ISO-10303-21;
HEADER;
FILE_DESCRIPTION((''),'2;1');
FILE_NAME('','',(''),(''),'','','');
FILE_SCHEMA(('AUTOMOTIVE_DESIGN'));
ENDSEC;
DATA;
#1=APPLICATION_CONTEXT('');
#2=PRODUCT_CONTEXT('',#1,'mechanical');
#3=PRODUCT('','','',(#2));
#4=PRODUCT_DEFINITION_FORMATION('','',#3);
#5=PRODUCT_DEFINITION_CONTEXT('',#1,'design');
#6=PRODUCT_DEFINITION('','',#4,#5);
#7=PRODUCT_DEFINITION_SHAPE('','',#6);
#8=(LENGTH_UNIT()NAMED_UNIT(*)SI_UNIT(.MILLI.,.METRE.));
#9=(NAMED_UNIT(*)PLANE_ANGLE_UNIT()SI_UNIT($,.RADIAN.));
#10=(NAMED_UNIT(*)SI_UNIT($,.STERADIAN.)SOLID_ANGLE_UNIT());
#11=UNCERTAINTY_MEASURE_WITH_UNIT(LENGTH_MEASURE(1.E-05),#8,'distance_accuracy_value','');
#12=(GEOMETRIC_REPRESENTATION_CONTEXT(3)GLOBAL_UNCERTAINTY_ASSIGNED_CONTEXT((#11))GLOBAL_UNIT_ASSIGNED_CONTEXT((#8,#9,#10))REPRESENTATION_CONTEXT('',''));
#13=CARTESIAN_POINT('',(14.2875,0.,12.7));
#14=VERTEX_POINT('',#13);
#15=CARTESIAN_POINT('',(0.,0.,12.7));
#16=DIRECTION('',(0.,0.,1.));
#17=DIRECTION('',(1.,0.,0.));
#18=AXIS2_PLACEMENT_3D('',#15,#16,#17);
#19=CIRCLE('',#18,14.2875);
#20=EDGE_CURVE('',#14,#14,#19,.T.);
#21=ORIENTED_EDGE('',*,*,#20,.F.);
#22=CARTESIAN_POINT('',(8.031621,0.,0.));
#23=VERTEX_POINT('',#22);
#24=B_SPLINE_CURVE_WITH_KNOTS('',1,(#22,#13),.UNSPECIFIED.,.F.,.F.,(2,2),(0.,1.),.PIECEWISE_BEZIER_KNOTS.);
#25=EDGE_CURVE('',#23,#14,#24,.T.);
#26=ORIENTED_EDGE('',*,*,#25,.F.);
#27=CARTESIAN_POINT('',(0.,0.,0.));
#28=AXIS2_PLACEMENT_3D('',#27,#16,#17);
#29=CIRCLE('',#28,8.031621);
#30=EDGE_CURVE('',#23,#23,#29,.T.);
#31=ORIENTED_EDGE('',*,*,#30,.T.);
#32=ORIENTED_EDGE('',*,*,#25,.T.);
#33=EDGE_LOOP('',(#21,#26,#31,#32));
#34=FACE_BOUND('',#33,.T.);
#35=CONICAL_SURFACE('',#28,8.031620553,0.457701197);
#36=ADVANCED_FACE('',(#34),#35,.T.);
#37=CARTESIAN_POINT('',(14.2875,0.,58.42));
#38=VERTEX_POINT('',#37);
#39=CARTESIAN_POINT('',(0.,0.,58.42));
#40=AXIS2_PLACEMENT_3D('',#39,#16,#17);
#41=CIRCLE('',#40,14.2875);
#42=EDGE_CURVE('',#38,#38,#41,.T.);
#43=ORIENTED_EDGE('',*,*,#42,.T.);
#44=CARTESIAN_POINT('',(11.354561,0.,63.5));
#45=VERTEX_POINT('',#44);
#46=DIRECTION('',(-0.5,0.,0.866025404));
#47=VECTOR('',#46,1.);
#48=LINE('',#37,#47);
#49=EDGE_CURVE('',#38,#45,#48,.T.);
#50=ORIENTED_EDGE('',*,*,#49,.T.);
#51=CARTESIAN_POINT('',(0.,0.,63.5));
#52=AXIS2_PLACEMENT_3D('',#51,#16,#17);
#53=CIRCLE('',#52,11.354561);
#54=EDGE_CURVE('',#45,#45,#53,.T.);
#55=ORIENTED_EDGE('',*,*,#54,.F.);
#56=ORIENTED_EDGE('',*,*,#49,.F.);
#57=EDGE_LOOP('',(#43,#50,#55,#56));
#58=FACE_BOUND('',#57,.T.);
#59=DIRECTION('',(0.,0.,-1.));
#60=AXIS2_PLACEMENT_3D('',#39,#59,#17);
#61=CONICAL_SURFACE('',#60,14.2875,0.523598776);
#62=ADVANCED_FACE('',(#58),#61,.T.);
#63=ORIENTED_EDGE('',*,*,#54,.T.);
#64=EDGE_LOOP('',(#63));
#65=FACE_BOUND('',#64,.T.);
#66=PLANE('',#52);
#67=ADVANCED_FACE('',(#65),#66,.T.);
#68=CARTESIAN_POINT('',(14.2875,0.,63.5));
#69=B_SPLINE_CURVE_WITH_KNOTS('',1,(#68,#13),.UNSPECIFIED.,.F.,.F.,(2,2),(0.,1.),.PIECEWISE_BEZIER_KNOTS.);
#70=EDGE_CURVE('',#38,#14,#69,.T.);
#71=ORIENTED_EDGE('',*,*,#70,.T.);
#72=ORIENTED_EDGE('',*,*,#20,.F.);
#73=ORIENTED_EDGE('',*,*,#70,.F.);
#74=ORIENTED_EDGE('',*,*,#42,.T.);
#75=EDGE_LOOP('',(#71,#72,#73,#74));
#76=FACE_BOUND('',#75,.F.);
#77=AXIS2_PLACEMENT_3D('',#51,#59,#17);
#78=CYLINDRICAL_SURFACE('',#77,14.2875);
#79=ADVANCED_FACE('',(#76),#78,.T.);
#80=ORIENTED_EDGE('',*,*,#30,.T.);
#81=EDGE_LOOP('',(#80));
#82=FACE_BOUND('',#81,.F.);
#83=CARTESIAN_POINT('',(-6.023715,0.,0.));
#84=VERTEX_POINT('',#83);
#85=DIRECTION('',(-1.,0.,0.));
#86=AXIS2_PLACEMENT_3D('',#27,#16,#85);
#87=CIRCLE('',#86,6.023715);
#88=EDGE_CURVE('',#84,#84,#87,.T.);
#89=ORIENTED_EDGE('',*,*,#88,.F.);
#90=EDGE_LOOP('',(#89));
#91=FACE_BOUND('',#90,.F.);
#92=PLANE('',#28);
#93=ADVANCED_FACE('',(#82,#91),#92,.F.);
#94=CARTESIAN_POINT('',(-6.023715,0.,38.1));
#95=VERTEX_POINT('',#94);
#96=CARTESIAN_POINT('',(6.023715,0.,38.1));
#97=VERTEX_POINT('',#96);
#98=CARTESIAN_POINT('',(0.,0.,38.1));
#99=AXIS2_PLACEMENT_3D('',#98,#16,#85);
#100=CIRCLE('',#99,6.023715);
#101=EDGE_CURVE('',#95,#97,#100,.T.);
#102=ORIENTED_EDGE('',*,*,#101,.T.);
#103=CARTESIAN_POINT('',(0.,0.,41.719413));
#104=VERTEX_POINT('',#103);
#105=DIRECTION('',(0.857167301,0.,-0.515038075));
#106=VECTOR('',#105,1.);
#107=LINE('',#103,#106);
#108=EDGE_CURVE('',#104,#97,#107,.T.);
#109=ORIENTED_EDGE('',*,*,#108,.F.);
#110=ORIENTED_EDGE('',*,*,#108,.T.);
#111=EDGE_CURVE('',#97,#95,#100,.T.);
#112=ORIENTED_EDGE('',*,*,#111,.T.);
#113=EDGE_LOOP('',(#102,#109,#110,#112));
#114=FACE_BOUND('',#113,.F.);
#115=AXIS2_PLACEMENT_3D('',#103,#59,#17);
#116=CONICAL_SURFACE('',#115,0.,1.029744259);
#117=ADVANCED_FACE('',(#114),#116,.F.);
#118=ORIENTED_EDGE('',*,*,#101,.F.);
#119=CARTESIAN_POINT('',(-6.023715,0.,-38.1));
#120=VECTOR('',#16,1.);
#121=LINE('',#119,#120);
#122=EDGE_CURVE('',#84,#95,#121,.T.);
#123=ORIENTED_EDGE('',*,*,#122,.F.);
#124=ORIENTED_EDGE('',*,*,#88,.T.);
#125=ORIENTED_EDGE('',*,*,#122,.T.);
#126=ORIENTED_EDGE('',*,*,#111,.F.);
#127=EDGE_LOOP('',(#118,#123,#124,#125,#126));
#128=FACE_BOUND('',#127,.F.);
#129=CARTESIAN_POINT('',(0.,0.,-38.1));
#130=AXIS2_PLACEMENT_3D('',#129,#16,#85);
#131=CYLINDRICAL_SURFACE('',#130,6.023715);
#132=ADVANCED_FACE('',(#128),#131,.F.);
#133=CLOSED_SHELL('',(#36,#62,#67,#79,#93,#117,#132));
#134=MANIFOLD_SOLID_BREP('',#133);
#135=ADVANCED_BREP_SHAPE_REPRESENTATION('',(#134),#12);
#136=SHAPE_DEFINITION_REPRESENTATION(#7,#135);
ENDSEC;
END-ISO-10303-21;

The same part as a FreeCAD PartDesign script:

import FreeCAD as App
import Part
import Sketcher
Q = App.Units.Quantity


def edges_at(feature, points):
    """Names of the edges that pass closest to the given points."""
    edges = feature.Shape.Edges
    near = lambda p: min(range(len(edges)), key=lambda i: edges[i].distToShape(Part.Vertex(*p))[0])
    return sorted({f"Edge{near(p) + 1}" for p in points})

doc = App.newDocument("Part")
body = doc.addObject("PartDesign::Body", "Body")

# Sketch on XY plane
sketch1 = body.newObject("Sketcher::SketchObject", "Sketch")
sketch1.AttachmentSupport = (doc.getObject("XY_Plane"), [""])
sketch1.MapMode = "FlatFace"
sketch1.addGeometry(Part.Circle(App.Vector(0, 0, 0), App.Vector(0, 0, 1), 8), False)
sketch1.addConstraint([
    Sketcher.Constraint("Coincident", 0, 3, -1, 1),
    Sketcher.Constraint("Diameter", 0, 16.063241),
])

# Sketch on XY plane
sketch2 = body.newObject("Sketcher::SketchObject", "Sketch001")
sketch2.AttachmentSupport = (doc.getObject("XY_Plane"), [""])
sketch2.MapMode = "FlatFace"
sketch2.AttachmentOffset = App.Placement(App.Vector(0, 0, 0.5 * 25.4), App.Rotation())
sketch2.addGeometry(Part.Circle(App.Vector(0, 0, 0), App.Vector(0, 0, 1), 14), False)
sketch2.addConstraint([
    Sketcher.Constraint("Coincident", 0, 3, -1, 1),
    Sketcher.Constraint("Diameter", 0, Q("1.125 in")),
])

additiveloft = body.newObject("PartDesign::AdditiveLoft", "AdditiveLoft")
additiveloft.Profile = sketch1
additiveloft.Sections = [sketch2]

# Sketch on XY plane
sketch3 = body.newObject("Sketcher::SketchObject", "Sketch002")
sketch3.AttachmentSupport = (doc.getObject("XY_Plane"), [""])
sketch3.MapMode = "FlatFace"
sketch3.AttachmentOffset = App.Placement(App.Vector(0, 0, 2.5 * 25.4), App.Rotation())
sketch3.addGeometry(Part.Circle(App.Vector(0, 0, 0), App.Vector(0, 0, 1), 14), False)
sketch3.addConstraint([
    Sketcher.Constraint("Coincident", 0, 3, -1, 1),
    Sketcher.Constraint("Diameter", 0, Q("1.125 in")),
])

# Sketch on XY plane
sketch4 = body.newObject("Sketcher::SketchObject", "Sketch003")
sketch4.AttachmentSupport = (doc.getObject("XY_Plane"), [""])
sketch4.MapMode = "FlatFace"
sketch4.AttachmentOffset = App.Placement(App.Vector(0, 0, 0.5 * 25.4), App.Rotation())
sketch4.addGeometry(Part.Circle(App.Vector(0, 0, 0), App.Vector(0, 0, 1), 14), False)
sketch4.addConstraint([
    Sketcher.Constraint("Coincident", 0, 3, -1, 1),
    Sketcher.Constraint("Diameter", 0, Q("1.125 in")),
])

additiveloft2 = body.newObject("PartDesign::AdditiveLoft", "AdditiveLoft001")
additiveloft2.Profile = sketch3
additiveloft2.Sections = [sketch4]

# Sketch on XY plane
sketch5 = body.newObject("Sketcher::SketchObject", "Sketch004")
sketch5.AttachmentSupport = (doc.getObject("XY_Plane"), [""])
sketch5.MapMode = "FlatFace"
sketch5.addGeometry(Part.Circle(App.Vector(0, 0, 0), App.Vector(0, 0, 1), 6), False)
sketch5.addConstraint([
    Sketcher.Constraint("Coincident", 0, 3, -1, 1),
    Sketcher.Constraint("Diameter", 0, 12.047431),
])
doc.recompute()
hole = body.newObject("PartDesign::Hole", "Hole")
hole.Profile = sketch5
hole.ThreadType = "None"
hole.Diameter = 12.047431
hole.DepthType = "Dimension"
hole.Depth = Q("1.5 in")
hole.DrillPoint = "Angled"
hole.DrillPointAngle = 118
hole.Reversed = True
doc.recompute()

chamfer = body.newObject("PartDesign::Chamfer", "Chamfer")
chamfer.Base = (hole, edges_at(hole, [(-14.287, 0, 63.5)]))
chamfer.ChamferType = "Two distances"
chamfer.Size = Q("0.2 in")
chamfer.Size2 = 2.932939

doc.recompute()
